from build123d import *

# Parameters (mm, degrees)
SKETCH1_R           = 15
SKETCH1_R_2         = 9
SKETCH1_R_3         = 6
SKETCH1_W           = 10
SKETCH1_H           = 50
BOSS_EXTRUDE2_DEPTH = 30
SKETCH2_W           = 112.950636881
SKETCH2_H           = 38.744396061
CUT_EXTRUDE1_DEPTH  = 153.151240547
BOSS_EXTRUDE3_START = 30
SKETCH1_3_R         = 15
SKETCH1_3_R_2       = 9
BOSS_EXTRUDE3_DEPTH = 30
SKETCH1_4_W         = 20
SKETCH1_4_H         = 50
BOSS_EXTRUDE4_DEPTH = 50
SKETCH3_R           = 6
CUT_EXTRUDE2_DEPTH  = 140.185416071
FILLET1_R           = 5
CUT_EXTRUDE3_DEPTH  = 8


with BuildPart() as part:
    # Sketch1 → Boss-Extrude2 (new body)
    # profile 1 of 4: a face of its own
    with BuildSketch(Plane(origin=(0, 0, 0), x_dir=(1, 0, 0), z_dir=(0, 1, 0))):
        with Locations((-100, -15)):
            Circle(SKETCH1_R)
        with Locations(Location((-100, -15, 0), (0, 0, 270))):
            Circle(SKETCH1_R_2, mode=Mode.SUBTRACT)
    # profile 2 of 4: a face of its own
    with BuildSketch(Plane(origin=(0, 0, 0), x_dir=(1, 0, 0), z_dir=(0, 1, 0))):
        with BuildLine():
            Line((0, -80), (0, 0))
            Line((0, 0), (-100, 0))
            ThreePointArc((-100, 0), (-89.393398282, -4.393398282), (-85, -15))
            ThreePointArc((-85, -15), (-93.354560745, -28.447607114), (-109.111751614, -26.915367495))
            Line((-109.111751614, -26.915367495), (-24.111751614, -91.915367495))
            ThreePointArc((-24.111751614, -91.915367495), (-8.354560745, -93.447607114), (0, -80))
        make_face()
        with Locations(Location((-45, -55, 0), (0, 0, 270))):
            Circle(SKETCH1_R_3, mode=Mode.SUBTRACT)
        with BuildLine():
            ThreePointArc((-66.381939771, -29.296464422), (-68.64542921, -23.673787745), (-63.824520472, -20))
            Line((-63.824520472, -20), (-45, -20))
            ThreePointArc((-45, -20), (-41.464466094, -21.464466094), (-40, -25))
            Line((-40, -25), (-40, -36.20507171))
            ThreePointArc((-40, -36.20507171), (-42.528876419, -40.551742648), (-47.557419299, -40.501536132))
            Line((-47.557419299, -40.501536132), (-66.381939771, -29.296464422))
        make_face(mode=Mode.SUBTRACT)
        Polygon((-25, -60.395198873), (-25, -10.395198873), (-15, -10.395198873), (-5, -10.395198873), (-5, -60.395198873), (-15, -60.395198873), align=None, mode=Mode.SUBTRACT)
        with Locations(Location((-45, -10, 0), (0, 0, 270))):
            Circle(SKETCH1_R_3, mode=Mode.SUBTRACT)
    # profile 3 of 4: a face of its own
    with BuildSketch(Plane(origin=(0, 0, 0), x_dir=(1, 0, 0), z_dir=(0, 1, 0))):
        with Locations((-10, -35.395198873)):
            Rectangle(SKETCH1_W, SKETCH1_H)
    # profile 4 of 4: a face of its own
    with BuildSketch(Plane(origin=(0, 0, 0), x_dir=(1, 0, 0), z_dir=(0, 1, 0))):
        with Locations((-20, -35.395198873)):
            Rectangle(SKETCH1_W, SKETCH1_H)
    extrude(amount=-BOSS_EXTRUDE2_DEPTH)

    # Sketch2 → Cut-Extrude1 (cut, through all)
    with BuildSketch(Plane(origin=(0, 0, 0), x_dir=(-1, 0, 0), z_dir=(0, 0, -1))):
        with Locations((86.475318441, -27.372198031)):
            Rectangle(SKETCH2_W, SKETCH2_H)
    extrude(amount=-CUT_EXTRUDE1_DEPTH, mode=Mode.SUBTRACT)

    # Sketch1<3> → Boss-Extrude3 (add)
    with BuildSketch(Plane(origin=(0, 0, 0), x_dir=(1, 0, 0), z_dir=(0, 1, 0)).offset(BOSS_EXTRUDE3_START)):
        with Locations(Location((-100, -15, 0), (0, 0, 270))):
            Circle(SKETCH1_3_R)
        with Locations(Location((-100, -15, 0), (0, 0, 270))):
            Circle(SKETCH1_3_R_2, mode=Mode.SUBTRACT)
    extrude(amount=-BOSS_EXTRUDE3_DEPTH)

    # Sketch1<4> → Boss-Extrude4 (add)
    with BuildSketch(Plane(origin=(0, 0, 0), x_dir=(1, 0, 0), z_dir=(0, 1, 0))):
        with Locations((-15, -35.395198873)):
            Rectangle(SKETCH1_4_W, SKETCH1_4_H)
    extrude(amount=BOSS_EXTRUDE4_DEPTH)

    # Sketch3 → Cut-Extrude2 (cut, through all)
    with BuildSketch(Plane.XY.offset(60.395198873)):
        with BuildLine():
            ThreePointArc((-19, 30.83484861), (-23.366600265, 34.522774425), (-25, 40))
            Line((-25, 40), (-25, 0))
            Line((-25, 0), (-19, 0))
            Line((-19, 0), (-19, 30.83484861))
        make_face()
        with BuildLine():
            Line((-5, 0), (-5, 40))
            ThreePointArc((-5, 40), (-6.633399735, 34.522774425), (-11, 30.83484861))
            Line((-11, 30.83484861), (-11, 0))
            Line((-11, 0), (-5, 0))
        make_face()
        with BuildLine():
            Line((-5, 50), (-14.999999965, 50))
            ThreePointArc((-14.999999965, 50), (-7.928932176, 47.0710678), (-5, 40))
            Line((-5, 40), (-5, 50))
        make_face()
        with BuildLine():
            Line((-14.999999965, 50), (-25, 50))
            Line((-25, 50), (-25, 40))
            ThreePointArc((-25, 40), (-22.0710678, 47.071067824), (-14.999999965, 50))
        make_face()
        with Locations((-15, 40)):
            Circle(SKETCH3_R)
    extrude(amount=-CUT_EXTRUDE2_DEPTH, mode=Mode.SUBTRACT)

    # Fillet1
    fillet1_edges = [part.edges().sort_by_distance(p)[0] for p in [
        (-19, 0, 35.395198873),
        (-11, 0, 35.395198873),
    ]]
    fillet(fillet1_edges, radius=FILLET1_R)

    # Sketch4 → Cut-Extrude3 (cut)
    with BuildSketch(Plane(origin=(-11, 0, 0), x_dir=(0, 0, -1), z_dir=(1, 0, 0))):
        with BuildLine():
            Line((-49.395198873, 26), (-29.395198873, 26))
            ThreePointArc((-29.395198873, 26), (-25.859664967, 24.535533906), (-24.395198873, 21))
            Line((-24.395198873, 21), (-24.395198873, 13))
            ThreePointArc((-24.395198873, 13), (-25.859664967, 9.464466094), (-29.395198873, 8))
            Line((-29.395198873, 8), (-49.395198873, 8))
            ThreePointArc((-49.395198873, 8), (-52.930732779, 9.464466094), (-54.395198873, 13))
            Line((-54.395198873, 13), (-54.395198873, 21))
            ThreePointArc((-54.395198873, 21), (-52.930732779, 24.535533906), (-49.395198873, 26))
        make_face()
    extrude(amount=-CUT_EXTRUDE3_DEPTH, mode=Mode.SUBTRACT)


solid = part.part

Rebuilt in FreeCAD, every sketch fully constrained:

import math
import FreeCAD as App
import Part
import Sketcher
from FreeCAD import Vector
Q = App.Units.Quantity


def edges_at(feature, points):
    """Names of the edges that pass closest to the given points."""
    edges = feature.Shape.Edges
    near = lambda p: min(range(len(edges)), key=lambda i: edges[i].distToShape(Part.Vertex(*p))[0])
    return sorted({f"Edge{near(p) + 1}" for p in points})

doc = App.newDocument("Part")
params = doc.addObject("Spreadsheet::Sheet", "Params")
for row, (alias, value) in enumerate([
    ("sketch1_diameter", "18 mm"),
    ("sketch1_diameter2", "12 mm"),
    ("sketch1_radius", "15 mm"),
    ("sketch1_radius2", "5 mm"),
    ("sketch1_width", "100 mm"),
    ("pad1_length", "30 mm"),
    ("sketch3_diameter", "30 mm"),
    ("sketch3_diameter2", "18 mm"),
    ("pad2_length", "30 mm"),
    ("sketch4_width", "20 mm"),
    ("sketch4_height", "50 mm"),
    ("pad3_length", "50 mm"),
    ("sketch5_diameter", "12 mm"),
    ("sketch5_radius", "10 mm"),
    ("sketch5_width", "6 mm"),
    ("sketch5_height", "40 mm"),
    ("fillet_radius", "5 mm"),
    ("sketch6_radius", "5 mm"),
    ("sketch6_width", "8 mm"),
    ("sketch6_height", "20 mm"),
    ("pocket3_length", "8 mm"),
], start=1):
    params.set(f"A{row}", alias)
    params.set(f"B{row}", "=" + value)
    params.setAlias(f"B{row}", alias)

body = doc.addObject("PartDesign::Body", "Body")

# Sketch on XZ plane
sketch1 = doc.addObject("Sketcher::SketchObject", "Sketch")
body.addObject(sketch1)
sketch1.AttachmentSupport = (doc.XZ_Plane, [""])
sketch1.MapMode = "FlatFace"
sketch1.addGeometry(Part.ArcOfCircle(Part.Circle(Vector(-100, 15, 0), Vector(0, 0, 1), 15), math.radians(127.405357), math.radians(270)), False)
sketch1.addGeometry(Part.LineSegment(Vector(-109.111752, 26.915367, 0), Vector(-24.111752, 91.915367, 0)), False)
sketch1.addGeometry(Part.ArcOfCircle(Part.Circle(Vector(-15, 80, 0), Vector(0, 0, 1), 15), math.radians(0), math.radians(127.405357)), False)
sketch1.addGeometry(Part.LineSegment(Vector(0, 80, 0), Vector(0, 0, 0)), False)
sketch1.addGeometry(Part.LineSegment(Vector(0, 0, 0), Vector(-100, 0, 0)), False)
sketch1.addGeometry(Part.Circle(Vector(-100, 15, 0), Vector(0, 0, 1), 9), False)
sketch1.addGeometry(Part.Circle(Vector(-45, 10, 0), Vector(0, 0, 1), 6), False)
sketch1.addGeometry(Part.ArcOfCircle(Part.Circle(Vector(-45, 25, 0), Vector(0, 0, 1), 5), math.radians(-90), math.radians(0)), False)
sketch1.addGeometry(Part.LineSegment(Vector(-40, 25, 0), Vector(-40, 36.205072, 0)), False)
sketch1.addGeometry(Part.ArcOfCircle(Part.Circle(Vector(-45, 36.205072, 0), Vector(0, 0, 1), 5), math.radians(0), math.radians(120.76272)), False)
sketch1.addGeometry(Part.LineSegment(Vector(-47.557419, 40.501536, 0), Vector(-66.38194, 29.296464, 0)), False)
sketch1.addGeometry(Part.ArcOfCircle(Part.Circle(Vector(-63.82452, 25, 0), Vector(0, 0, 1), 5), math.radians(120.76272), math.radians(270)), False)
sketch1.addGeometry(Part.LineSegment(Vector(-63.82452, 20, 0), Vector(-45, 20, 0)), False)
sketch1.addGeometry(Part.Circle(Vector(-45, 55, 0), Vector(0, 0, 1), 6), False)
sketch1.addConstraint(Sketcher.Constraint("Tangent", 0, 1, 1, 1))
sketch1.addConstraint(Sketcher.Constraint("Tangent", 1, 2, 2, 2))
sketch1.addConstraint(Sketcher.Constraint("Tangent", 2, 1, 3, 1))
sketch1.addConstraint(Sketcher.Constraint("Coincident", 3, 2, 4, 1))
sketch1.addConstraint(Sketcher.Constraint("Tangent", 4, 2, 0, 2))
sketch1.addConstraint(Sketcher.Constraint("Tangent", 7, 2, 8, 1))
sketch1.addConstraint(Sketcher.Constraint("Tangent", 8, 2, 9, 1))
sketch1.addConstraint(Sketcher.Constraint("Tangent", 9, 2, 10, 1))
sketch1.addConstraint(Sketcher.Constraint("Tangent", 10, 2, 11, 1))
sketch1.addConstraint(Sketcher.Constraint("Tangent", 11, 2, 12, 1))
sketch1.addConstraint(Sketcher.Constraint("Tangent", 12, 2, 7, 1))
sketch1.addConstraint(Sketcher.Constraint("Vertical", 3))
sketch1.addConstraint(Sketcher.Constraint("Horizontal", 4))
sketch1.addConstraint(Sketcher.Constraint("Vertical", 8))
sketch1.addConstraint(Sketcher.Constraint("Horizontal", 12))
sketch1.addConstraint(Sketcher.Constraint("Coincident", 3, 2, -1, 1))
sketch1.addConstraint(Sketcher.Constraint("Coincident", 5, 3, 0, 3))
sketch1.addConstraint(Sketcher.Constraint("Equal", 0, 2))
sketch1.addConstraint(Sketcher.Constraint("Equal", 7, 9))
sketch1.addConstraint(Sketcher.Constraint("Equal", 9, 11))
sketch1.addConstraint(Sketcher.Constraint("Equal", 6, 13))
sketch1.addConstraint(Sketcher.Constraint("Vertical", 6, 3, 7, 3))
sketch1.addConstraint(Sketcher.Constraint("Vertical", 9, 3, 13, 3))
sketch1.addConstraint(Sketcher.Constraint("Diameter", 5, Q("18 mm")))
sketch1.addConstraint(Sketcher.Constraint("Diameter", 6, Q("12 mm")))
sketch1.addConstraint(Sketcher.Constraint("Radius", 0, Q("15 mm")))
sketch1.addConstraint(Sketcher.Constraint("Radius", 7, Q("5 mm")))
sketch1.addConstraint(Sketcher.Constraint("DistanceX", 4, 2, 4, 1, Q("100 mm")))
sketch1.addConstraint(Sketcher.Constraint("DistanceY", 3, 2, 3, 1, Q("80 mm")))
sketch1.addConstraint(Sketcher.Constraint("DistanceX", 6, 3, -1, 1, Q("45 mm")))
sketch1.addConstraint(Sketcher.Constraint("DistanceY", -1, 1, 6, 3, Q("10 mm")))
sketch1.addConstraint(Sketcher.Constraint("DistanceY", -1, 1, 7, 3, Q("25 mm")))
sketch1.addConstraint(Sketcher.Constraint("DistanceY", -1, 1, 13, 3, Q("55 mm")))
sketch1.addConstraint(Sketcher.Constraint("DistanceX", 12, 1, 12, 2, Q("18.82452 mm")))
sketch1.addConstraint(Sketcher.Constraint("DistanceY", 8, 1, 8, 2, Q("11.205072 mm")))
sketch1.setExpression("Constraints[23]", "Params.sketch1_diameter")
sketch1.setExpression("Constraints[24]", "Params.sketch1_diameter2")
sketch1.setExpression("Constraints[25]", "Params.sketch1_radius")
sketch1.setExpression("Constraints[26]", "Params.sketch1_radius2")
sketch1.setExpression("Constraints[27]", "Params.sketch1_width")
pad1 = doc.addObject("PartDesign::Pad", "Pad")
body.addObject(pad1)
pad1.Profile = sketch1
pad1.setExpression("Length", "Params.pad1_length")

# Sketch on XY plane
sketch2 = doc.addObject("Sketcher::SketchObject", "Sketch001")
body.addObject(sketch2)
sketch2.AttachmentSupport = (doc.XY_Plane, [""])
sketch2.MapMode = "FlatFace"
sketch2.addGeometry(Part.LineSegment(Vector(-30, -8, 0), Vector(-30, -46.744396, 0)), False)
sketch2.addGeometry(Part.LineSegment(Vector(-30, -46.744396, 0), Vector(-142.950637, -46.744396, 0)), False)
sketch2.addGeometry(Part.LineSegment(Vector(-142.950637, -46.744396, 0), Vector(-142.950637, -8, 0)), False)
sketch2.addGeometry(Part.LineSegment(Vector(-142.950637, -8, 0), Vector(-30, -8, 0)), False)
sketch2.addConstraint(Sketcher.Constraint("Coincident", 0, 2, 1, 1))
sketch2.addConstraint(Sketcher.Constraint("Coincident", 1, 2, 2, 1))
sketch2.addConstraint(Sketcher.Constraint("Coincident", 2, 2, 3, 1))
sketch2.addConstraint(Sketcher.Constraint("Coincident", 3, 2, 0, 1))
sketch2.addConstraint(Sketcher.Constraint("Vertical", 0))
sketch2.addConstraint(Sketcher.Constraint("Horizontal", 1))
sketch2.addConstraint(Sketcher.Constraint("Vertical", 2))
sketch2.addConstraint(Sketcher.Constraint("Horizontal", 3))
sketch2.addConstraint(Sketcher.Constraint("DistanceX", 0, 2, -1, 1, Q("30 mm")))
sketch2.addConstraint(Sketcher.Constraint("DistanceY", 2, 2, -1, 1, Q("8 mm")))
sketch2.addConstraint(Sketcher.Constraint("DistanceX", 1, 2, 1, 1, Q("112.950637 mm")))
sketch2.addConstraint(Sketcher.Constraint("DistanceY", 0, 2, 0, 1, Q("38.744396 mm")))
pocket1 = doc.addObject("PartDesign::Pocket", "Pocket")
body.addObject(pocket1)
pocket1.Profile = sketch2
pocket1.Type = "ThroughAll"
pocket1.Reversed = True

# Sketch on XZ plane
sketch3 = doc.addObject("Sketcher::SketchObject", "Sketch002")
body.addObject(sketch3)
sketch3.AttachmentSupport = (doc.XZ_Plane, [""])
sketch3.MapMode = "FlatFace"
sketch3.AttachmentOffset = App.Placement(Vector(0, 0, -30), App.Rotation())
sketch3.addGeometry(Part.Circle(Vector(-100, 15, 0), Vector(0, 0, 1), 15), False)
sketch3.addGeometry(Part.Circle(Vector(-100, 15, 0), Vector(0, 0, 1), 9), False)
sketch3.addConstraint(Sketcher.Constraint("Coincident", 1, 3, 0, 3))
sketch3.addConstraint(Sketcher.Constraint("Diameter", 0, Q("30 mm")))
sketch3.addConstraint(Sketcher.Constraint("Diameter", 1, Q("18 mm")))
sketch3.addConstraint(Sketcher.Constraint("DistanceX", 0, 3, -1, 1, Q("100 mm")))
sketch3.addConstraint(Sketcher.Constraint("DistanceY", -1, 1, 0, 3, Q("15 mm")))
sketch3.setExpression("Constraints[1]", "Params.sketch3_diameter")
sketch3.setExpression("Constraints[2]", "Params.sketch3_diameter2")
pad2 = doc.addObject("PartDesign::Pad", "Pad001")
body.addObject(pad2)
pad2.Profile = sketch3
pad2.setExpression("Length", "Params.pad2_length")

# Sketch on XZ plane
sketch4 = doc.addObject("Sketcher::SketchObject", "Sketch003")
body.addObject(sketch4)
sketch4.AttachmentSupport = (doc.XZ_Plane, [""])
sketch4.MapMode = "FlatFace"
sketch4.addGeometry(Part.LineSegment(Vector(-25, 10.395199, 0), Vector(-25, 60.395199, 0)), False)
sketch4.addGeometry(Part.LineSegment(Vector(-25, 60.395199, 0), Vector(-5, 60.395199, 0)), False)
sketch4.addGeometry(Part.LineSegment(Vector(-5, 60.395199, 0), Vector(-5, 10.395199, 0)), False)
sketch4.addGeometry(Part.LineSegment(Vector(-5, 10.395199, 0), Vector(-25, 10.395199, 0)), False)
sketch4.addConstraint(Sketcher.Constraint("Coincident", 0, 2, 1, 1))
sketch4.addConstraint(Sketcher.Constraint("Coincident", 1, 2, 2, 1))
sketch4.addConstraint(Sketcher.Constraint("Coincident", 2, 2, 3, 1))
sketch4.addConstraint(Sketcher.Constraint("Coincident", 3, 2, 0, 1))
sketch4.addConstraint(Sketcher.Constraint("Vertical", 0))
sketch4.addConstraint(Sketcher.Constraint("Horizontal", 1))
sketch4.addConstraint(Sketcher.Constraint("Vertical", 2))
sketch4.addConstraint(Sketcher.Constraint("Horizontal", 3))
sketch4.addConstraint(Sketcher.Constraint("DistanceX", 1, 1, 1, 2, Q("20 mm")))
sketch4.addConstraint(Sketcher.Constraint("DistanceY", 0, 1, 0, 2, Q("50 mm")))
sketch4.addConstraint(Sketcher.Constraint("DistanceX", 0, 2, -1, 1, Q("25 mm")))
sketch4.addConstraint(Sketcher.Constraint("DistanceY", -1, 1, 0, 2, Q("60.395199 mm")))
sketch4.setExpression("Constraints[8]", "Params.sketch4_width")
sketch4.setExpression("Constraints[9]", "Params.sketch4_height")
pad3 = doc.addObject("PartDesign::Pad", "Pad002")
body.addObject(pad3)
pad3.Profile = sketch4
pad3.setExpression("Length", "Params.pad3_length")
pad3.Reversed = True

# Sketch on XY plane
sketch5 = doc.addObject("Sketcher::SketchObject", "Sketch004")
body.addObject(sketch5)
sketch5.AttachmentSupport = (doc.XY_Plane, [""])
sketch5.MapMode = "FlatFace"
sketch5.AttachmentOffset = App.Placement(Vector(0, 0, 60.395199), App.Rotation())
sketch5.addGeometry(Part.ArcOfCircle(Part.Circle(Vector(-15, 40, 0), Vector(0, 0, 1), 10), math.radians(-180), math.radians(-113.578178)), False)
sketch5.addGeometry(Part.LineSegment(Vector(-25, 40, 0), Vector(-25, 0, 0)), False)
sketch5.addGeometry(Part.LineSegment(Vector(-25, 0, 0), Vector(-19, 0, 0)), False)
sketch5.addGeometry(Part.LineSegment(Vector(-19, 0, 0), Vector(-19, 30.834849, 0)), False)
sketch5.addGeometry(Part.LineSegment(Vector(-5, 0, 0), Vector(-5, 40, 0)), False)
sketch5.addGeometry(Part.ArcOfCircle(Part.Circle(Vector(-15, 40, 0), Vector(0, 0, 1), 10), math.radians(-66.421822), math.radians(0)), False)
sketch5.addGeometry(Part.LineSegment(Vector(-11, 30.834849, 0), Vector(-11, 0, 0)), False)
sketch5.addGeometry(Part.LineSegment(Vector(-11, 0, 0), Vector(-5, 0, 0)), False)
sketch5.addGeometry(Part.LineSegment(Vector(-5, 50, 0), Vector(-15, 50, 0)), False)
sketch5.addGeometry(Part.ArcOfCircle(Part.Circle(Vector(-15, 40, 0), Vector(0, 0, 1), 10), math.radians(0), math.radians(90)), False)
sketch5.addGeometry(Part.LineSegment(Vector(-5, 40, 0), Vector(-5, 50, 0)), False)
sketch5.addGeometry(Part.LineSegment(Vector(-15, 50, 0), Vector(-25, 50, 0)), False)
sketch5.addGeometry(Part.LineSegment(Vector(-25, 50, 0), Vector(-25, 40, 0)), False)
sketch5.addGeometry(Part.ArcOfCircle(Part.Circle(Vector(-15, 40, 0), Vector(0, 0, 1), 10), math.radians(90), math.radians(180)), False)
sketch5.addGeometry(Part.Circle(Vector(-15, 40, 0), Vector(0, 0, 1), 6), False)
sketch5.addConstraint(Sketcher.Constraint("Tangent", 0, 1, 1, 1))
sketch5.addConstraint(Sketcher.Constraint("Coincident", 1, 2, 2, 1))
sketch5.addConstraint(Sketcher.Constraint("Coincident", 2, 2, 3, 1))
sketch5.addConstraint(Sketcher.Constraint("Coincident", 3, 2, 0, 2))
sketch5.addConstraint(Sketcher.Constraint("Tangent", 4, 2, 5, 2))
sketch5.addConstraint(Sketcher.Constraint("Coincident", 5, 1, 6, 1))
sketch5.addConstraint(Sketcher.Constraint("Coincident", 6, 2, 7, 1))
sketch5.addConstraint(Sketcher.Constraint("Coincident", 7, 2, 4, 1))
sketch5.addConstraint(Sketcher.Constraint("Tangent", 8, 2, 9, 2))
sketch5.addConstraint(Sketcher.Constraint("Tangent", 9, 1, 10, 1))
sketch5.addConstraint(Sketcher.Constraint("Coincident", 10, 2, 8, 1))
sketch5.addConstraint(Sketcher.Constraint("Coincident", 11, 2, 12, 1))
sketch5.addConstraint(Sketcher.Constraint("Tangent", 12, 2, 13, 2))
sketch5.addConstraint(Sketcher.Constraint("Tangent", 13, 1, 11, 1))
sketch5.addConstraint(Sketcher.Constraint("Vertical", 1))
sketch5.addConstraint(Sketcher.Constraint("Horizontal", 2))
sketch5.addConstraint(Sketcher.Constraint("Vertical", 3))
sketch5.addConstraint(Sketcher.Constraint("Vertical", 4))
sketch5.addConstraint(Sketcher.Constraint("Vertical", 6))
sketch5.addConstraint(Sketcher.Constraint("Horizontal", 7))
sketch5.addConstraint(Sketcher.Constraint("Horizontal", 8))
sketch5.addConstraint(Sketcher.Constraint("Vertical", 10))
sketch5.addConstraint(Sketcher.Constraint("Horizontal", 11))
sketch5.addConstraint(Sketcher.Constraint("Vertical", 12))
sketch5.addConstraint(Sketcher.Constraint("Coincident", 5, 3, 0, 3))
sketch5.addConstraint(Sketcher.Constraint("Coincident", 9, 3, 0, 3))
sketch5.addConstraint(Sketcher.Constraint("Coincident", 13, 3, 0, 3))
sketch5.addConstraint(Sketcher.Constraint("Coincident", 14, 3, 0, 3))
sketch5.addConstraint(Sketcher.Constraint("Equal", 0, 5))
sketch5.addConstraint(Sketcher.Constraint("Equal", 5, 9))
sketch5.addConstraint(Sketcher.Constraint("Equal", 9, 13))
sketch5.addConstraint(Sketcher.Constraint("PointOnObject", 1, 2, -1))
sketch5.addConstraint(Sketcher.Constraint("PointOnObject", 6, 2, -1))
sketch5.addConstraint(Sketcher.Constraint("Horizontal", 3, 2, 5, 1))
sketch5.addConstraint(Sketcher.Constraint("Diameter", 14, Q("12 mm")))
sketch5.addConstraint(Sketcher.Constraint("Radius", 0, Q("10 mm")))
sketch5.addConstraint(Sketcher.Constraint("DistanceX", 2, 1, 2, 2, Q("6 mm")))
sketch5.addConstraint(Sketcher.Constraint("DistanceY", 1, 2, 1, 1, Q("40 mm")))
sketch5.addConstraint(Sketcher.Constraint("DistanceX", 0, 3, -1, 1, Q("15 mm")))
sketch5.setExpression("Constraints[34]", "Params.sketch5_diameter")
sketch5.setExpression("Constraints[35]", "Params.sketch5_radius")
sketch5.setExpression("Constraints[36]", "Params.sketch5_width")
sketch5.setExpression("Constraints[37]", "Params.sketch5_height")
pocket2 = doc.addObject("PartDesign::Pocket", "Pocket001")
body.addObject(pocket2)
pocket2.Profile = sketch5
pocket2.Type = "ThroughAll"
doc.recompute()

fillet = doc.addObject("PartDesign::Fillet", "Fillet")
body.addObject(fillet)
fillet.Base = (pocket2, edges_at(pocket2, [(-19, 0, 35.395), (-11, 0, 35.395)]))
fillet.setExpression("Radius", "Params.fillet_radius")

# Sketch on YZ plane
sketch6 = doc.addObject("Sketcher::SketchObject", "Sketch005")
body.addObject(sketch6)
sketch6.AttachmentSupport = (doc.YZ_Plane, [""])
sketch6.MapMode = "FlatFace"
sketch6.AttachmentOffset = App.Placement(Vector(0, 0, -11), App.Rotation())
sketch6.addGeometry(Part.LineSegment(Vector(26, 29.395199, 0), Vector(26, 49.395199, 0)), False)
sketch6.addGeometry(Part.ArcOfCircle(Part.Circle(Vector(21, 49.395199, 0), Vector(0, 0, 1), 5), math.radians(0), math.radians(90)), False)
sketch6.addGeometry(Part.LineSegment(Vector(21, 54.395199, 0), Vector(13, 54.395199, 0)), False)
sketch6.addGeometry(Part.ArcOfCircle(Part.Circle(Vector(13, 49.395199, 0), Vector(0, 0, 1), 5), math.radians(90), math.radians(180)), False)
sketch6.addGeometry(Part.LineSegment(Vector(8, 49.395199, 0), Vector(8, 29.395199, 0)), False)
sketch6.addGeometry(Part.ArcOfCircle(Part.Circle(Vector(13, 29.395199, 0), Vector(0, 0, 1), 5), math.radians(180), math.radians(270)), False)
sketch6.addGeometry(Part.LineSegment(Vector(13, 24.395199, 0), Vector(21, 24.395199, 0)), False)
sketch6.addGeometry(Part.ArcOfCircle(Part.Circle(Vector(21, 29.395199, 0), Vector(0, 0, 1), 5), math.radians(-90), math.radians(0)), False)
sketch6.addConstraint(Sketcher.Constraint("Tangent", 0, 2, 1, 1))
sketch6.addConstraint(Sketcher.Constraint("Tangent", 1, 2, 2, 1))
sketch6.addConstraint(Sketcher.Constraint("Tangent", 2, 2, 3, 1))
sketch6.addConstraint(Sketcher.Constraint("Tangent", 3, 2, 4, 1))
sketch6.addConstraint(Sketcher.Constraint("Tangent", 4, 2, 5, 1))
sketch6.addConstraint(Sketcher.Constraint("Tangent", 5, 2, 6, 1))
sketch6.addConstraint(Sketcher.Constraint("Tangent", 6, 2, 7, 1))
sketch6.addConstraint(Sketcher.Constraint("Tangent", 7, 2, 0, 1))
sketch6.addConstraint(Sketcher.Constraint("Vertical", 0))
sketch6.addConstraint(Sketcher.Constraint("Horizontal", 2))
sketch6.addConstraint(Sketcher.Constraint("Vertical", 4))
sketch6.addConstraint(Sketcher.Constraint("Horizontal", 6))
sketch6.addConstraint(Sketcher.Constraint("Equal", 1, 3))
sketch6.addConstraint(Sketcher.Constraint("Equal", 3, 5))
sketch6.addConstraint(Sketcher.Constraint("Equal", 5, 7))
sketch6.addConstraint(Sketcher.Constraint("Radius", 1, Q("5 mm")))
sketch6.addConstraint(Sketcher.Constraint("DistanceX", 2, 2, 2, 1, Q("8 mm")))
sketch6.addConstraint(Sketcher.Constraint("DistanceY", 0, 1, 0, 2, Q("20 mm")))
sketch6.addConstraint(Sketcher.Constraint("DistanceX", -1, 1, 1, 3, Q("21 mm")))
sketch6.addConstraint(Sketcher.Constraint("DistanceY", -1, 1, 1, 3, Q("49.395199 mm")))
sketch6.setExpression("Constraints[15]", "Params.sketch6_radius")
sketch6.setExpression("Constraints[16]", "Params.sketch6_width")
sketch6.setExpression("Constraints[17]", "Params.sketch6_height")
pocket3 = doc.addObject("PartDesign::Pocket", "Pocket002")
body.addObject(pocket3)
pocket3.Profile = sketch6
pocket3.setExpression("Length", "Params.pocket3_length")

doc.recompute()
